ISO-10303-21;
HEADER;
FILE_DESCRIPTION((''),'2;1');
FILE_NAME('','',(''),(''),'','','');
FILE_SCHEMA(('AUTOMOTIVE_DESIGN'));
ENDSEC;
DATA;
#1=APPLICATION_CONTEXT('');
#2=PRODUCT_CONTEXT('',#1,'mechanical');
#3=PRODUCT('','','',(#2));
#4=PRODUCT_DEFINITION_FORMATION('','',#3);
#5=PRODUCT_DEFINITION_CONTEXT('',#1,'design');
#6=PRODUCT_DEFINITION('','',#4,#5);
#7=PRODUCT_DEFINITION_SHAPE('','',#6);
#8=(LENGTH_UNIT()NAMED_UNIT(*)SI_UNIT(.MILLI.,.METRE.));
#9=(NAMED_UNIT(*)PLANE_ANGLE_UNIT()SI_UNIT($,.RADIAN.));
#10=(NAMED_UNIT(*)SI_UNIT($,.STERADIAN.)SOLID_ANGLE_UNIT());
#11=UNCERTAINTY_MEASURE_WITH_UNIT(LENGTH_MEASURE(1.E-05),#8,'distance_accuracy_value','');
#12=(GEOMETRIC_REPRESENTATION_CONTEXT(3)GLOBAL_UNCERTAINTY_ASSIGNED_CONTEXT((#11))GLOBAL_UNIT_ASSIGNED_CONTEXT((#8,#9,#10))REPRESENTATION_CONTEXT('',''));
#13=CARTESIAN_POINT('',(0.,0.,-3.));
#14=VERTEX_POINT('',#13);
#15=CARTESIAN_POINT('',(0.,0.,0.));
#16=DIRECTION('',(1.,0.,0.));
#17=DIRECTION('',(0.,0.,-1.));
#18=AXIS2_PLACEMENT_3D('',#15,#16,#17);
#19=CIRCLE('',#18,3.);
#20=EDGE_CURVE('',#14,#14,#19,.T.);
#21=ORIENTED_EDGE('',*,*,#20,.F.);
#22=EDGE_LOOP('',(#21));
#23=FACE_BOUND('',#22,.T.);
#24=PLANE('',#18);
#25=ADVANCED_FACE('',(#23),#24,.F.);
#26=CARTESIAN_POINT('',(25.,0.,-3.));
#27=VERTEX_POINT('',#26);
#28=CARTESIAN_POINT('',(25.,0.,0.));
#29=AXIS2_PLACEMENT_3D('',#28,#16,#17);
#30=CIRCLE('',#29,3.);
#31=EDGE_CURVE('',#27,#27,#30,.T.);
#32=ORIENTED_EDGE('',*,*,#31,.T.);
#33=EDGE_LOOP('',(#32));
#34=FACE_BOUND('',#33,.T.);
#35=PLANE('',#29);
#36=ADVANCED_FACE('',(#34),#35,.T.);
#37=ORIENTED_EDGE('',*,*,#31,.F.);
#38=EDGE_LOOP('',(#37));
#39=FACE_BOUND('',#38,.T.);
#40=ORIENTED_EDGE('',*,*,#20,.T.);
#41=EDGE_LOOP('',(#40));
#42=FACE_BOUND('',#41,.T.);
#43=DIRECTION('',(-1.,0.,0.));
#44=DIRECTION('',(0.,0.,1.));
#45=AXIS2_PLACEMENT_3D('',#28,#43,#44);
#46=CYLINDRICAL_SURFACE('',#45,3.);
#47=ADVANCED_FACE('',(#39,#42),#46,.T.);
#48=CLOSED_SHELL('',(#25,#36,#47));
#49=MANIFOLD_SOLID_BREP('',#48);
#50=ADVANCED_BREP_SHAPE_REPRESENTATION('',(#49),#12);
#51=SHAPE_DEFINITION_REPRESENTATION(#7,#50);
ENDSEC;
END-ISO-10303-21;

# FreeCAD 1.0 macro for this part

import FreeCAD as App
import Part
import Sketcher

V = App.Vector
Q = App.Units.Quantity

doc = App.newDocument("Part")
params = doc.addObject("Spreadsheet::Sheet", "Params")
for row, (alias, value) in enumerate([
    ("sketch1_diameter", "6 mm"),
    ("pad1_length", "25 mm"),
], start=1):
    params.set(f"A{row}", alias)
    params.set(f"B{row}", "=" + value)
    params.setAlias(f"B{row}", alias)

body = doc.addObject("PartDesign::Body", "Body")

# Sketch on YZ plane
sketch1 = body.newObject("Sketcher::SketchObject", "Sketch")
sketch1.AttachmentSupport = (doc.getObject("YZ_Plane"), [""])
sketch1.MapMode = "FlatFace"
sketch1.addGeometry(Part.Circle(V(0, 0, 0), V(0, 0, 1), 3), False)
sketch1.addConstraint([
    Sketcher.Constraint("Coincident", 0, 3, -1, 1),
    Sketcher.Constraint("Diameter", 0, Q("6 mm")),
])
sketch1.setExpression("Constraints[1]", "Params.sketch1_diameter")
pad1 = body.newObject("PartDesign::Pad", "Pad")
pad1.Profile = sketch1
pad1.setExpression("Length", "Params.pad1_length")

doc.recompute()
